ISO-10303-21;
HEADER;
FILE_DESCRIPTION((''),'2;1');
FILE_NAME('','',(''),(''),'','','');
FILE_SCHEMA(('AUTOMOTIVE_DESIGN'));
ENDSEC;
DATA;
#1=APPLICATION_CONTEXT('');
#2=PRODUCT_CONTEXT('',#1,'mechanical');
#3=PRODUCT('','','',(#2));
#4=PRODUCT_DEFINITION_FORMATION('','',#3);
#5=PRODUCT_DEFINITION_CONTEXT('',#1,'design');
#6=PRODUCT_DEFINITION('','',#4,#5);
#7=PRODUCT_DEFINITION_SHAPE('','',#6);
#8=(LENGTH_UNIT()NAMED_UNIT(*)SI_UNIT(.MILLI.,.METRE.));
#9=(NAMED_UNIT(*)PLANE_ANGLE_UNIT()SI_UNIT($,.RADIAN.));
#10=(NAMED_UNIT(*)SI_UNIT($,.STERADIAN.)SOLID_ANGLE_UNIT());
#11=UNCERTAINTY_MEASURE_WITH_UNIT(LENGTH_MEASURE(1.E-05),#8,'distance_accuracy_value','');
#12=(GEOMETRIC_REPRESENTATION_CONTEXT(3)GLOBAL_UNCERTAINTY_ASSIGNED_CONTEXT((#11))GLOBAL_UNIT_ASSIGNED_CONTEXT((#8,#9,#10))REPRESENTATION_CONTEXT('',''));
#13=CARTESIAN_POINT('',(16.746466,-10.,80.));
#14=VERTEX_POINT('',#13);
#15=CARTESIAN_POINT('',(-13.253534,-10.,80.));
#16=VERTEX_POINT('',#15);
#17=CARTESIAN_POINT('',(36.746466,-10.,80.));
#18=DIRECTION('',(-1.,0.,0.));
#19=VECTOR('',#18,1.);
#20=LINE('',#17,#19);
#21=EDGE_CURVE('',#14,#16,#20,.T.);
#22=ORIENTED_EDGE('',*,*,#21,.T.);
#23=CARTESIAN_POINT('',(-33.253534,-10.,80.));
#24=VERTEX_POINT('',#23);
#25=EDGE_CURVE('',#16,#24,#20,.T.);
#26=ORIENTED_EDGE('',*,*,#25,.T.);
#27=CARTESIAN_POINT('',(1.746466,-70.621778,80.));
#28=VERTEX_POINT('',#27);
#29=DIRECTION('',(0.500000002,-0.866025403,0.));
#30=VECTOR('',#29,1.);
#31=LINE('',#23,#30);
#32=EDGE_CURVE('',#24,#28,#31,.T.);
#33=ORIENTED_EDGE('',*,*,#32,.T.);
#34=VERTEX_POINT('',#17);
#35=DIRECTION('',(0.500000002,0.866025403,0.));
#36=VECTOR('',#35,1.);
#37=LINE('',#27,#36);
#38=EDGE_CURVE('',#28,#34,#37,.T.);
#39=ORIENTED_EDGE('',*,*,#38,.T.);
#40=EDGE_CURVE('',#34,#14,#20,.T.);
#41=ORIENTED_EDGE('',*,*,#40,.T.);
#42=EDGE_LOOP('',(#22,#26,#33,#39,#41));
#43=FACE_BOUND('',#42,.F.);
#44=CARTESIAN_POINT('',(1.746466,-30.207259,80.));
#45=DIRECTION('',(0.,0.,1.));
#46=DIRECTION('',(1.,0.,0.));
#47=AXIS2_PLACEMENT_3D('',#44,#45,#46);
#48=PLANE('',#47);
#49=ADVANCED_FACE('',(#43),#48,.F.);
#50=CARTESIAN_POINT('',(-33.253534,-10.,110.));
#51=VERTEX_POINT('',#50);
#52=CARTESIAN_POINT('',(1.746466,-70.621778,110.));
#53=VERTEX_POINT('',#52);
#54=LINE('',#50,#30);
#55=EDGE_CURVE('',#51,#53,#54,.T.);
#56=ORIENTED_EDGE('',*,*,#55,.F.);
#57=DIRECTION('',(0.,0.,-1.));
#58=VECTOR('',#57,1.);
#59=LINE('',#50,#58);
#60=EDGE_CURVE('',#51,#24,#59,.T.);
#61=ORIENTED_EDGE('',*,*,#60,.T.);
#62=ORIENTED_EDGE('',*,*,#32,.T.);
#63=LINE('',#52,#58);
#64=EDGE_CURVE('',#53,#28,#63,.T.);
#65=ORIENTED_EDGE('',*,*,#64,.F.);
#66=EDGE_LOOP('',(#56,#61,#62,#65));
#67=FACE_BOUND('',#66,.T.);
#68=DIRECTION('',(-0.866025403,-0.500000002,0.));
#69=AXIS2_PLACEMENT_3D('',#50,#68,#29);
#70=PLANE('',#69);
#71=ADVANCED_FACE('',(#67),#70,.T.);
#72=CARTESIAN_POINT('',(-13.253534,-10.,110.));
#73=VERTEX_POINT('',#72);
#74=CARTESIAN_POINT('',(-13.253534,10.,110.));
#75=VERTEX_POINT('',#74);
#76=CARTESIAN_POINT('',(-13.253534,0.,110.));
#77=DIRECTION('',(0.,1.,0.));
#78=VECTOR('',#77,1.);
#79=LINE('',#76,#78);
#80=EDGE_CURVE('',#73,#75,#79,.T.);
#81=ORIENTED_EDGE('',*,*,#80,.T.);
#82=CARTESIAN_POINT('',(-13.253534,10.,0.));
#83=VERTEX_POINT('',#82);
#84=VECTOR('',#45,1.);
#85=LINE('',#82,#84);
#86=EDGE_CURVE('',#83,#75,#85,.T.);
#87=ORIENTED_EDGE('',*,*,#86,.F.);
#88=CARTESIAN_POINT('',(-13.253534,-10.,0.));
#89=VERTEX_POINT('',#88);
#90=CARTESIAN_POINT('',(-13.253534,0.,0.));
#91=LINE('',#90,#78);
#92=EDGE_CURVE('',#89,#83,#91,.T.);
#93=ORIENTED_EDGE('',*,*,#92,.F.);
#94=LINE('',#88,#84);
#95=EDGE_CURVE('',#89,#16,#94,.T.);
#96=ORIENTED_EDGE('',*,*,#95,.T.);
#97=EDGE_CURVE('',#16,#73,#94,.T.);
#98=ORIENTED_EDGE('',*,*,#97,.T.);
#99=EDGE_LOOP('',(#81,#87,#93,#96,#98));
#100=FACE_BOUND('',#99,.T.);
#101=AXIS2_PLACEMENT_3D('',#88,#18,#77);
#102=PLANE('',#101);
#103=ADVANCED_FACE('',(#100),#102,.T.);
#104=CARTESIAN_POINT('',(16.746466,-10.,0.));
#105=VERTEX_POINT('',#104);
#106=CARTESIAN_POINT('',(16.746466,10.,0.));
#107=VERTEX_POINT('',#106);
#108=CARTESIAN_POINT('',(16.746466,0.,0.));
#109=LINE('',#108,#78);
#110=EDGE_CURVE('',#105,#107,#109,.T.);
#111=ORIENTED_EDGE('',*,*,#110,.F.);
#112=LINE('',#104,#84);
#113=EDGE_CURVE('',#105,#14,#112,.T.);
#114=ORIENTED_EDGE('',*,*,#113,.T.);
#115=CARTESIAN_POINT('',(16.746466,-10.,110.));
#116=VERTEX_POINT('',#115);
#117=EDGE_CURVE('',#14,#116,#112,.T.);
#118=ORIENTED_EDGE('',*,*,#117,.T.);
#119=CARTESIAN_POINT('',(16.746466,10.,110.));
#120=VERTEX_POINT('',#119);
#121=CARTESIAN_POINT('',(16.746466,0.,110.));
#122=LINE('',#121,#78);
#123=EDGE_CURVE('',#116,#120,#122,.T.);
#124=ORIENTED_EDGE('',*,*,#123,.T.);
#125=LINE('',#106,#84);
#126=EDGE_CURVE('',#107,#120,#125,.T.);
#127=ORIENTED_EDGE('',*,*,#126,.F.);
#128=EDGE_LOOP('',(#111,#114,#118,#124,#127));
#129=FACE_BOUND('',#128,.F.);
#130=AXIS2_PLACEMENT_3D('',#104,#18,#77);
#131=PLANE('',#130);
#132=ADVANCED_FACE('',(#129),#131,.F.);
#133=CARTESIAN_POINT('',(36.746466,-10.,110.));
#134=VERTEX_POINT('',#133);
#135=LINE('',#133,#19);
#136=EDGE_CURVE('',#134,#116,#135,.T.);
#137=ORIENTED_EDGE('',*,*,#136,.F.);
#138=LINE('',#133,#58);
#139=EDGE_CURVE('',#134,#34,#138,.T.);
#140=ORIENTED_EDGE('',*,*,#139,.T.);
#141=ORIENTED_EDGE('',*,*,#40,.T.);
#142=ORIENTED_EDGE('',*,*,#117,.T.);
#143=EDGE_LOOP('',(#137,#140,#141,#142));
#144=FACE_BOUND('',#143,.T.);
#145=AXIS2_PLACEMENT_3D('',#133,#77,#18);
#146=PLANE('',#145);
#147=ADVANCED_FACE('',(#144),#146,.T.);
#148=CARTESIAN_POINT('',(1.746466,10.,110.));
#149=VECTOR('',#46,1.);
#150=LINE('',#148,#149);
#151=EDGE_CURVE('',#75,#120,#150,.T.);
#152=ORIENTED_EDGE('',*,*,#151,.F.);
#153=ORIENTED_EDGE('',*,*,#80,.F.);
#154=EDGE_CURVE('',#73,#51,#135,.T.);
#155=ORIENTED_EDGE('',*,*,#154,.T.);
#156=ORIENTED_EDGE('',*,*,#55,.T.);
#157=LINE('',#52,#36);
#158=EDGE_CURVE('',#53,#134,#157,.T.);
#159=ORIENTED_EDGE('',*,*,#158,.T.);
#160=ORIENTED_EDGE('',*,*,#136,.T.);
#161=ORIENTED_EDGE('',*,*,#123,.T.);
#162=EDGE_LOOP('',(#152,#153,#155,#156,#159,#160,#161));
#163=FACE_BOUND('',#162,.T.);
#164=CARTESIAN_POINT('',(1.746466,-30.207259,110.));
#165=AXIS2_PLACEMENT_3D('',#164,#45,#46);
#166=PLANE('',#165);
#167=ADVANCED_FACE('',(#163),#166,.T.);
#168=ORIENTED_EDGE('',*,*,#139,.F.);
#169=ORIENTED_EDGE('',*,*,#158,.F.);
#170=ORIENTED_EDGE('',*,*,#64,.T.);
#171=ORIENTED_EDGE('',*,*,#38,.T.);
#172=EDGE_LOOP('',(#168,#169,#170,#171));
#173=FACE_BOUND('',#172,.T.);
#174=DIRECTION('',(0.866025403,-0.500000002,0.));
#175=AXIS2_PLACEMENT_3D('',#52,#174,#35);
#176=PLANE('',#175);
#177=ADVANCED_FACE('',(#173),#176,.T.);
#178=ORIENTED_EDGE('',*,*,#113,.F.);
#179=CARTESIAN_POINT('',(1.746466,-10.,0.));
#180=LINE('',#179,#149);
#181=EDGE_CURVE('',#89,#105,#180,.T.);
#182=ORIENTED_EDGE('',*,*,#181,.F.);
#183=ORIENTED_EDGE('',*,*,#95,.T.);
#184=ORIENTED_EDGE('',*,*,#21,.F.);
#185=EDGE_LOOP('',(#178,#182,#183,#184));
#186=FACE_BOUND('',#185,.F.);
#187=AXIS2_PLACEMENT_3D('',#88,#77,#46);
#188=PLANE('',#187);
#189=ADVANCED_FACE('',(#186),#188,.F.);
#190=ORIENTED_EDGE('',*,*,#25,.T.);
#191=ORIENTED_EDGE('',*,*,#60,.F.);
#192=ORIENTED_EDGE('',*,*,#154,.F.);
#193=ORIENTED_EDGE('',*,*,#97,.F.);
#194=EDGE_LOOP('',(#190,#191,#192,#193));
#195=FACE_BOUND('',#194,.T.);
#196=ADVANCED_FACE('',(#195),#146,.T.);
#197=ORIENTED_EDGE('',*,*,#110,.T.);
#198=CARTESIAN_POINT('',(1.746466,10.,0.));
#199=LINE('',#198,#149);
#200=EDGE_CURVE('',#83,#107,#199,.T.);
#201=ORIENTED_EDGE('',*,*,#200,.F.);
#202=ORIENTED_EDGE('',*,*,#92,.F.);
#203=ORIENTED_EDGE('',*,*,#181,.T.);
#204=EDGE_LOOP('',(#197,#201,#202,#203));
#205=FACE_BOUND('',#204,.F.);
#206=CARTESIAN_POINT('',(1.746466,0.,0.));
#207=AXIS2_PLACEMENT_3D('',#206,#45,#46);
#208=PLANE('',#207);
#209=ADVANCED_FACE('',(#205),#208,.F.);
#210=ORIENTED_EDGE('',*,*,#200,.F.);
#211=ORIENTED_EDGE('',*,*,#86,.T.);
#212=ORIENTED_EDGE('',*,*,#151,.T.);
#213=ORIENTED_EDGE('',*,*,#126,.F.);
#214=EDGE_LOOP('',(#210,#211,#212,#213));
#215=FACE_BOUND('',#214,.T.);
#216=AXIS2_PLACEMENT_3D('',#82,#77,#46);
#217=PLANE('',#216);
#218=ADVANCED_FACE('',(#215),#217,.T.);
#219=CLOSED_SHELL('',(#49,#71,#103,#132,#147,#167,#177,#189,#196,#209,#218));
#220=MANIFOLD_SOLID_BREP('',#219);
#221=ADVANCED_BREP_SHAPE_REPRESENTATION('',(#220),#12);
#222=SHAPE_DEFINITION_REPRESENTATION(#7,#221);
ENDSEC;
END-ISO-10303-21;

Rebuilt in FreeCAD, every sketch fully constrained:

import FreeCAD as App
import Part
import Sketcher
from FreeCAD import Vector
Q = App.Units.Quantity


def add_polygon(sketch, points):
    """Adds a closed chain of lines whose ends are joined by coincident constraints."""
    first, n = sketch.GeometryCount, len(points)
    for a, b in zip(points, points[1:] + points[:1]):
        sketch.addGeometry(Part.LineSegment(App.Vector(*a, 0), App.Vector(*b, 0)), False)
    for i in range(n):
        sketch.addConstraint(Sketcher.Constraint("Coincident", first + i, 2, first + (i + 1) % n, 1))

doc = App.newDocument("Part")
body = doc.addObject("PartDesign::Body", "Body")

# Sketch on XY plane
sketch1 = body.newObject("Sketcher::SketchObject", "Sketch")
sketch1.AttachmentSupport = (doc.getObject("XY_Plane"), [""])
sketch1.MapMode = "FlatFace"
add_polygon(sketch1, [(-13, 10), (-13, -10), (17, -10), (17, 10)])  # lines 0-3
sketch1.addConstraint([
    Sketcher.Constraint("Vertical", 0),
    Sketcher.Constraint("Horizontal", 1),
    Sketcher.Constraint("Vertical", 2),
    Sketcher.Constraint("Horizontal", 3),
    Sketcher.Constraint("DistanceX", 1, 1, 1, 2, Q("30 mm")),
    Sketcher.Constraint("DistanceY", 0, 2, 0, 1, Q("20 mm")),
    Sketcher.Constraint("DistanceY", 0, 2, -1, 1, Q("10 mm")),
    Sketcher.Constraint("DistanceX", 0, 2, -1, 1, Q("13.253534 mm")),
])
pad1 = body.newObject("PartDesign::Pad", "Pad")
pad1.Profile = sketch1
pad1.Length = 110

# Sketch on XY plane
sketch2 = body.newObject("Sketcher::SketchObject", "Sketch001")
sketch2.AttachmentSupport = (doc.getObject("XY_Plane"), [""])
sketch2.MapMode = "FlatFace"
sketch2.AttachmentOffset = App.Placement(Vector(0, 0, 110), App.Rotation())
add_polygon(sketch2, [(-33, -10), (2, -71), (37, -10)])  # lines 0-2
sketch2.addConstraint([
    Sketcher.Constraint("Horizontal", 2),
    Sketcher.Constraint("Equal", 0, 1),
    Sketcher.Constraint("DistanceX", 2, 2, 2, 1, Q("70 mm")),
    Sketcher.Constraint("Angle", 0, Q("-60 deg")),
    Sketcher.Constraint("DistanceY", 1, 2, -1, 1, Q("10 mm")),
    Sketcher.Constraint("DistanceX", -1, 1, 0, 2, Q("1.746466 mm")),
])
pad2 = body.newObject("PartDesign::Pad", "Pad001")
pad2.Profile = sketch2
pad2.Length = 30
pad2.Reversed = True

doc.recompute()
